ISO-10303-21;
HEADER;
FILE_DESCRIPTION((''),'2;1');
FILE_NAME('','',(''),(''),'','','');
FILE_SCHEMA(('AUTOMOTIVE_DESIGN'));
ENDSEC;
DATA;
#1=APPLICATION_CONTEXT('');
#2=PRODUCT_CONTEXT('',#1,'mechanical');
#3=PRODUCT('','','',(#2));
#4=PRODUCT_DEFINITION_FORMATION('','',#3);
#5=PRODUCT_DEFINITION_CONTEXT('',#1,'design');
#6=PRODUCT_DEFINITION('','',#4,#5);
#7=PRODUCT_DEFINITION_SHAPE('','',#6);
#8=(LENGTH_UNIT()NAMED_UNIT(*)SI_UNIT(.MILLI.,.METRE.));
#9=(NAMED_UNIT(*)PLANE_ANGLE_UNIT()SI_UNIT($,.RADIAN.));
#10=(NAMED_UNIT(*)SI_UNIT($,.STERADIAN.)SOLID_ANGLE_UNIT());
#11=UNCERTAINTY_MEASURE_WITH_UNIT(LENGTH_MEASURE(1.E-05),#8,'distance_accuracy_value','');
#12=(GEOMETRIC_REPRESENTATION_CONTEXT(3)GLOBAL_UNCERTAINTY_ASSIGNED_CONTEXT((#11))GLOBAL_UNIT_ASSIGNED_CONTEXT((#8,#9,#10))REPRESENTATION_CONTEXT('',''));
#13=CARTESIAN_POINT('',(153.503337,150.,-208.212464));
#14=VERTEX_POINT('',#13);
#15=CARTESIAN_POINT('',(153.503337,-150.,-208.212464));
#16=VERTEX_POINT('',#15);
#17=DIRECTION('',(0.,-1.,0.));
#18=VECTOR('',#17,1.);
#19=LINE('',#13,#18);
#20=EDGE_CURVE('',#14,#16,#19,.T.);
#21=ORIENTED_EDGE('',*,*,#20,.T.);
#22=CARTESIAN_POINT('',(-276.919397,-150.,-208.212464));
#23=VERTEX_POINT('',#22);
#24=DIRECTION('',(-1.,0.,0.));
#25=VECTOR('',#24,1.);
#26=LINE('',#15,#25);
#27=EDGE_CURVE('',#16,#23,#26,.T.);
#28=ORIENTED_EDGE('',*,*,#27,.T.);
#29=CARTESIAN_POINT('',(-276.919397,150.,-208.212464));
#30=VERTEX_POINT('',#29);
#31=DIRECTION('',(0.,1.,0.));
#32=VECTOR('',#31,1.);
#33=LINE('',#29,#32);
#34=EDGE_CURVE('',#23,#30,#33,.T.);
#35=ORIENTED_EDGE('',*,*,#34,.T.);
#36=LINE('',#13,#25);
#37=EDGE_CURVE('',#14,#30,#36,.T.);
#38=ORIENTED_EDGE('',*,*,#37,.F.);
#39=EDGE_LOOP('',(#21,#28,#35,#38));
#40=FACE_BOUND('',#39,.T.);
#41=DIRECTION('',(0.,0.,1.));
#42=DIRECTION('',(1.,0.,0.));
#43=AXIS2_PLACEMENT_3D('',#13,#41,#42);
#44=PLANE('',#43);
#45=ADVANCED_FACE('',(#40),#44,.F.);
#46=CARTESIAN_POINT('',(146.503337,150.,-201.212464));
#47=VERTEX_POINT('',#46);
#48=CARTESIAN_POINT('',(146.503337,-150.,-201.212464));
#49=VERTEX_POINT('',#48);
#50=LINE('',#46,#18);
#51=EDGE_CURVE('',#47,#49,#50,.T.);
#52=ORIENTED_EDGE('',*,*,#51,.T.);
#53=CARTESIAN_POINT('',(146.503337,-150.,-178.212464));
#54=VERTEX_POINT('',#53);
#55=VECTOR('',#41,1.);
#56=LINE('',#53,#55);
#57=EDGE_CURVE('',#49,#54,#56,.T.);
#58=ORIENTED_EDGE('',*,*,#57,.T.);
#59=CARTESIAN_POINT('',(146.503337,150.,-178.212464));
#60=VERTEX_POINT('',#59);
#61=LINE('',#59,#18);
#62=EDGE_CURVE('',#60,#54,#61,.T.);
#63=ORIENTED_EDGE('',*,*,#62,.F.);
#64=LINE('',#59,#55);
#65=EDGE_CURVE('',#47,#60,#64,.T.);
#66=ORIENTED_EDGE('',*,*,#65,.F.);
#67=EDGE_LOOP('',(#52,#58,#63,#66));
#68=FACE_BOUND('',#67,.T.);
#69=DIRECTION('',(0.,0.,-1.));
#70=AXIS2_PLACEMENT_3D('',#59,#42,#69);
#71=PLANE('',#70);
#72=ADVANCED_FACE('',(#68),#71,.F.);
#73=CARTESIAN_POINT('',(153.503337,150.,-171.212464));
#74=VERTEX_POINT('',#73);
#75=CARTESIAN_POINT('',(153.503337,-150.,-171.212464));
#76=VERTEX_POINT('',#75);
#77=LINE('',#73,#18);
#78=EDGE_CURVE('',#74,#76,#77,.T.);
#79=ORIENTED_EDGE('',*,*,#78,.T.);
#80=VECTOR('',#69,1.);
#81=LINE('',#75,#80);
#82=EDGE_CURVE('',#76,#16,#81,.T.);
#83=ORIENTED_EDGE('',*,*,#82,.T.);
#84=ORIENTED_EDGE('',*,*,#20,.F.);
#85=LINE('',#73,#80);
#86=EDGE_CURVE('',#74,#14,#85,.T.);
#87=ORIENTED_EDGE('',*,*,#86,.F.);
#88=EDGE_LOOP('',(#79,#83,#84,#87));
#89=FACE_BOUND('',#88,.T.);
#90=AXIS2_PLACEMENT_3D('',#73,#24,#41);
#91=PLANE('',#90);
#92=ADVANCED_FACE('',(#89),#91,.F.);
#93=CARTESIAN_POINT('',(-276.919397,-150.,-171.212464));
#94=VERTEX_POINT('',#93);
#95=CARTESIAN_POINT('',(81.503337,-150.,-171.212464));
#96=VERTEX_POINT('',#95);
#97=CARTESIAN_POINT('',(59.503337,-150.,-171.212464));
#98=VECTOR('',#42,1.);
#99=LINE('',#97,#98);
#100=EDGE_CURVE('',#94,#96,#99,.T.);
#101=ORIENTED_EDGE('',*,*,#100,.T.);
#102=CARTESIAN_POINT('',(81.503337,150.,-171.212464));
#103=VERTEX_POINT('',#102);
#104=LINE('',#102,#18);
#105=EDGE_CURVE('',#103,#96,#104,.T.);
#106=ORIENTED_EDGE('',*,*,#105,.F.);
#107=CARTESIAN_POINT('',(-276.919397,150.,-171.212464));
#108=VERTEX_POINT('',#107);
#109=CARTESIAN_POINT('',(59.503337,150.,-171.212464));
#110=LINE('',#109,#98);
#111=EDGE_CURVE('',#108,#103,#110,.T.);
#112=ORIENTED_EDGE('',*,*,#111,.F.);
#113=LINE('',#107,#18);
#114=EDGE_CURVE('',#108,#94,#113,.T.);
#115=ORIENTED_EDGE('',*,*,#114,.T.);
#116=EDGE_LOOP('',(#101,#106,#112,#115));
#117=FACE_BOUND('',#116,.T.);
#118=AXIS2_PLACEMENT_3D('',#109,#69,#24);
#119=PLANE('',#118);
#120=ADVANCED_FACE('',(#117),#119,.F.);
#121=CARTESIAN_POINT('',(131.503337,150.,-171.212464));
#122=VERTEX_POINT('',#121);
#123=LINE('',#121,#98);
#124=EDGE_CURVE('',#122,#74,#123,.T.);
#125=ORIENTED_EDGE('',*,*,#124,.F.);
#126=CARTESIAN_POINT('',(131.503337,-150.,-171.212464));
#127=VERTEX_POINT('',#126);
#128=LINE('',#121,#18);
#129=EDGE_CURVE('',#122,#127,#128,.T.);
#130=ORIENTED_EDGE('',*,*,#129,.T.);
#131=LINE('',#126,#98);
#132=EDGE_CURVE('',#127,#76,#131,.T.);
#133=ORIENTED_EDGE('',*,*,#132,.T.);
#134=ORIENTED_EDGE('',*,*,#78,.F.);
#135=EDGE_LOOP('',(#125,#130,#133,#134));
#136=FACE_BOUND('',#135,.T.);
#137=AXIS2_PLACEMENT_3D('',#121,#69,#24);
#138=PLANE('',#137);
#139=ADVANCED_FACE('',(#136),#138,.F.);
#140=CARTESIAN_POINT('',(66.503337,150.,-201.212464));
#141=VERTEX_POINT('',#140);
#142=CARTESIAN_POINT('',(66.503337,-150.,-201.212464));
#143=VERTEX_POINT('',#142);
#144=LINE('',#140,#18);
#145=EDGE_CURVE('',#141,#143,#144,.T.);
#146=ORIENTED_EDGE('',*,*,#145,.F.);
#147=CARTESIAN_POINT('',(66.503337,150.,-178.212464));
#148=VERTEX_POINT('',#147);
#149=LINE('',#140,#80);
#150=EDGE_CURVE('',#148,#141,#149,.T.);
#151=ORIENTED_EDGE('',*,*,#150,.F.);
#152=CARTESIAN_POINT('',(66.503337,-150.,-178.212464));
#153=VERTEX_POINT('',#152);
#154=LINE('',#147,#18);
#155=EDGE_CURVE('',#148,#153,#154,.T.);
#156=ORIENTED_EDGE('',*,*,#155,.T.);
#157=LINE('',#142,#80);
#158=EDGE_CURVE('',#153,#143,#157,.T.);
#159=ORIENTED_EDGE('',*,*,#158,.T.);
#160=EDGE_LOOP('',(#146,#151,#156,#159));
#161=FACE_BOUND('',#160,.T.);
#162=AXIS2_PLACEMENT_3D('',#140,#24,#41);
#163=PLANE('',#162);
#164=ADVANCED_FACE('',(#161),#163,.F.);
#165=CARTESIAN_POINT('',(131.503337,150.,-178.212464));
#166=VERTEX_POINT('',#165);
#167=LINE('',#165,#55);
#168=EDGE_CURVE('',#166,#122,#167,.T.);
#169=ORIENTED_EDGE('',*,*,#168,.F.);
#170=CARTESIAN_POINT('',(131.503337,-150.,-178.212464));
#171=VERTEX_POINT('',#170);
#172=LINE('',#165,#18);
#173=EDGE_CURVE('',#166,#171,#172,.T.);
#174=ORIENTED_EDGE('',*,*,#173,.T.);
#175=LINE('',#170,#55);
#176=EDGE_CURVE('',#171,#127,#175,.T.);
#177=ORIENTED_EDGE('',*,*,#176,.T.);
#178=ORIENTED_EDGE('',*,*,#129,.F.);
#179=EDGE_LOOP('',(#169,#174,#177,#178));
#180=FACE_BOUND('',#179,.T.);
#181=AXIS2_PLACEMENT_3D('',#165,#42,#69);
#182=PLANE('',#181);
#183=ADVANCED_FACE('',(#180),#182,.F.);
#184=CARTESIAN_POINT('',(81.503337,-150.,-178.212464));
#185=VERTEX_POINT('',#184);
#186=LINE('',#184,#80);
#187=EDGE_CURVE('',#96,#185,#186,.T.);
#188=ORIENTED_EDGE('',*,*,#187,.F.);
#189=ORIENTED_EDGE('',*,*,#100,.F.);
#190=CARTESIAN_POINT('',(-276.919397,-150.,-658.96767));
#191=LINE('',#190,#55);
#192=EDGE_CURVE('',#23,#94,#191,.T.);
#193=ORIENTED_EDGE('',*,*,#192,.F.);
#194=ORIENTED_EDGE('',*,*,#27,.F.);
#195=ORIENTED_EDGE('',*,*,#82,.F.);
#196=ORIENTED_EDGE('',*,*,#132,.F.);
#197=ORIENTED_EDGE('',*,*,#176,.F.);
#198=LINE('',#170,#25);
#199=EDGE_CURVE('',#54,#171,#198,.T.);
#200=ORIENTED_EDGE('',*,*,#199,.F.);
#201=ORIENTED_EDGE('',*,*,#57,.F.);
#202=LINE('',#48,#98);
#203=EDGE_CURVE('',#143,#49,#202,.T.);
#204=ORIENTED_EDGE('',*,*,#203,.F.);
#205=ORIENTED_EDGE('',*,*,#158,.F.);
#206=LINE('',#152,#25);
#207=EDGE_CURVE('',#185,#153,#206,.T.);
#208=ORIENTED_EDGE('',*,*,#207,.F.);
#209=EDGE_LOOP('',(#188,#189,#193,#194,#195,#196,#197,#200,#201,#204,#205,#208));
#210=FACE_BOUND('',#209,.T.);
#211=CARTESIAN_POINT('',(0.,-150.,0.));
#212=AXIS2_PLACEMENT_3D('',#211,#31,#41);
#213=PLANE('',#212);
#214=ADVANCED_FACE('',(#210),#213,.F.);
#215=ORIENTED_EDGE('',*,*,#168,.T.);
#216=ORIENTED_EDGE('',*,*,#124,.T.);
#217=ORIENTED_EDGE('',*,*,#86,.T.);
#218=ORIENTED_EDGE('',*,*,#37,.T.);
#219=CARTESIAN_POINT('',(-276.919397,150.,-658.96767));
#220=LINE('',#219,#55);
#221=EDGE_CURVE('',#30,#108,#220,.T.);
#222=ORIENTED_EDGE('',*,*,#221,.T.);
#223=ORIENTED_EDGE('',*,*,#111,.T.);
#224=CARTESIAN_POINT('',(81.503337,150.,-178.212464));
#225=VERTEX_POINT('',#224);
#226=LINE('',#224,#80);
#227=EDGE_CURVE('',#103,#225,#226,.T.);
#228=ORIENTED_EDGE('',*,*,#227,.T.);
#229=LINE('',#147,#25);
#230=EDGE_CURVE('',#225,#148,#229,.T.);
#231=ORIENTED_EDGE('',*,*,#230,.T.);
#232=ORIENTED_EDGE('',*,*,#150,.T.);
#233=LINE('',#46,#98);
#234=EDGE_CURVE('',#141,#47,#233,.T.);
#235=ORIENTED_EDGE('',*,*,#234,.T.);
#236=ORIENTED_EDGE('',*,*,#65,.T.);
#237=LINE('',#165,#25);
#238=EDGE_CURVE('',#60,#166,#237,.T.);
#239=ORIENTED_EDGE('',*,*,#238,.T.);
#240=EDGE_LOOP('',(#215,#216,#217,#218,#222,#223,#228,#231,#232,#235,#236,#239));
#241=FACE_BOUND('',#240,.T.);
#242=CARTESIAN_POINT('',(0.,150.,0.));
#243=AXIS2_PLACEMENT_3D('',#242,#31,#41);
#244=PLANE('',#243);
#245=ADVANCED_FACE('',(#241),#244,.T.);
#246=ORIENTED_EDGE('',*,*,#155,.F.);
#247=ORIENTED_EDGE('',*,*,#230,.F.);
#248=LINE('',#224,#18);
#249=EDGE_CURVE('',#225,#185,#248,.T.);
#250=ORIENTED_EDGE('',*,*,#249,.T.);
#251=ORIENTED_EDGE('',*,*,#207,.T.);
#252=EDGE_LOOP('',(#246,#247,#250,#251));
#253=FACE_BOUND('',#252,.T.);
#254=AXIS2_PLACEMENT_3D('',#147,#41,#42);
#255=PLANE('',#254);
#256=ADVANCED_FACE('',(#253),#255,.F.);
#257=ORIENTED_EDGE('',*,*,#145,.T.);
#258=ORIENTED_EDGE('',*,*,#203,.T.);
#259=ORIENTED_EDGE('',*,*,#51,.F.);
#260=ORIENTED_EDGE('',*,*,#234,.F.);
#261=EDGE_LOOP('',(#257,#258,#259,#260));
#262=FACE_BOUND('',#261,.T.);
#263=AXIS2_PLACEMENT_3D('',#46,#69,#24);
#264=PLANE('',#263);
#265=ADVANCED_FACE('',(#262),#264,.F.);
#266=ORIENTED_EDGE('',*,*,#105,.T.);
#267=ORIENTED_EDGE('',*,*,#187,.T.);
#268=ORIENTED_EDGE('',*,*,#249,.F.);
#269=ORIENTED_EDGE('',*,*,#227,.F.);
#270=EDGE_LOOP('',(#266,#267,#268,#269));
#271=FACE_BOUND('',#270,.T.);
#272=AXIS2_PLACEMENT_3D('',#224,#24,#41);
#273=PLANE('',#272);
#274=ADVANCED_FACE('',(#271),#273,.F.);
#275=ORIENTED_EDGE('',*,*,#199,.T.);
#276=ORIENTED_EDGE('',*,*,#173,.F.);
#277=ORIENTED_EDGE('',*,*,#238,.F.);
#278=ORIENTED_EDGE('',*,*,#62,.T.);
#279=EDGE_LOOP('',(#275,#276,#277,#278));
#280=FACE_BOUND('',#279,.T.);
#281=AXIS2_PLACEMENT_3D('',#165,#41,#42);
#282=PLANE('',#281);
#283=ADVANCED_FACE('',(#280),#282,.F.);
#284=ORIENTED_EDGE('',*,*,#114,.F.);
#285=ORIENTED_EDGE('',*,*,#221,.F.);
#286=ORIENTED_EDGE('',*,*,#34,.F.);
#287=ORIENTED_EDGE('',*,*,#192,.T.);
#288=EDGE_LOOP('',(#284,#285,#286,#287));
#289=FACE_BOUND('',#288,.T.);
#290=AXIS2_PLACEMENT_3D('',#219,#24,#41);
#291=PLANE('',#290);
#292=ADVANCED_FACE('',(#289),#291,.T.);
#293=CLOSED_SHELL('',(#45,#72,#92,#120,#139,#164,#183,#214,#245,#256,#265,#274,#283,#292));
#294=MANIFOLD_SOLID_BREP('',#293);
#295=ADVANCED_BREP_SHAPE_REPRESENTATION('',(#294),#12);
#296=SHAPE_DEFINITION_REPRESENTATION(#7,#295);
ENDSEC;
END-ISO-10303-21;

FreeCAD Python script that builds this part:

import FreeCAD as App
import Part
import Sketcher
from FreeCAD import Vector


def add_polygon(sketch, points):
    """Adds a closed chain of lines whose ends are joined by coincident constraints."""
    first, n = sketch.GeometryCount, len(points)
    for a, b in zip(points, points[1:] + points[:1]):
        sketch.addGeometry(Part.LineSegment(App.Vector(*a, 0), App.Vector(*b, 0)), False)
    for i in range(n):
        sketch.addConstraint(Sketcher.Constraint("Coincident", first + i, 2, first + (i + 1) % n, 1))

doc = App.newDocument("Part")
body = doc.addObject("PartDesign::Body", "Body")

sketch1 = body.newObject("Sketcher::SketchObject", "Sketch")
sketch1.AttachmentSupport = (doc.getObject("XZ_Plane"), [""])
sketch1.MapMode = "FlatFace"
add_polygon(sketch1, [(146.503337, -178.212464), (131.503337, -178.212464), (131.503337, -171.212464), (153.503337, -171.212464), (153.503337, -208.212464), (59.503337, -208.212464), (59.503337, -171.212464), (81.503337, -171.212464), (81.503337, -178.212464), (66.503337, -178.212464), (66.503337, -201.212464), (146.503337, -201.212464)])
sketch1.addConstraint([
    Sketcher.Constraint("Horizontal", 0),
    Sketcher.Constraint("Vertical", 1),
    Sketcher.Constraint("Horizontal", 2),
    Sketcher.Constraint("Vertical", 3),
    Sketcher.Constraint("Horizontal", 4),
    Sketcher.Constraint("Vertical", 5),
    Sketcher.Constraint("Horizontal", 6),
    Sketcher.Constraint("Vertical", 7),
    Sketcher.Constraint("Horizontal", 8),
    Sketcher.Constraint("Vertical", 9),
    Sketcher.Constraint("Horizontal", 10),
    Sketcher.Constraint("Vertical", 11),
    Sketcher.Constraint("Horizontal", 2, 2, 5, 2),
    Sketcher.Constraint("Horizontal", 0, 2, 7, 2),
    Sketcher.Constraint("Equal", 2, 6),
    Sketcher.Constraint("Equal", 0, 8),
    Sketcher.Constraint("DistanceX", 0, 2, 0, 1, 15.0),
    Sketcher.Constraint("DistanceX", 2, 1, 2, 2, 22.0),
    Sketcher.Constraint("DistanceX", 4, 2, 4, 1, 94.0),
    Sketcher.Constraint("DistanceY", 1, 1, 1, 2, 7.0),
    Sketcher.Constraint("DistanceY", 3, 2, 3, 1, 37.0),
    Sketcher.Constraint("DistanceY", 9, 2, 9, 1, 23.0),
    Sketcher.Constraint("DistanceX", -1, 1, 0, 2, 131.503337),
    Sketcher.Constraint("DistanceY", 0, 2, -1, 1, 178.212464),
])
pad1 = body.newObject("PartDesign::Pad", "Pad")
pad1.Profile = sketch1
pad1.Length = 300
pad1.Midplane = True

sketch2 = body.newObject("Sketcher::SketchObject", "Sketch001")
sketch2.AttachmentSupport = (doc.getObject("XY_Plane"), [""])
sketch2.MapMode = "FlatFace"
sketch2.AttachmentOffset = App.Placement(Vector(0, 0, -171.212464), App.Rotation())
add_polygon(sketch2, [(-276.919397, 150), (-276.919397, -150), (59.503337, -150), (59.503337, 150)])
sketch2.addConstraint([
    Sketcher.Constraint("Vertical", 0),
    Sketcher.Constraint("Horizontal", 1),
    Sketcher.Constraint("Vertical", 2),
    Sketcher.Constraint("Horizontal", 3),
    Sketcher.Constraint("DistanceY", 0, 2, 0, 1, 300.0),
    Sketcher.Constraint("DistanceY", 0, 2, -1, 1, 150.0),
    Sketcher.Constraint("DistanceX", 1, 1, 1, 2, 336.422734),
    Sketcher.Constraint("DistanceX", 0, 2, -1, 1, 276.919397),
])
pad2 = body.newObject("PartDesign::Pad", "Pad001")
pad2.Profile = sketch2
pad2.Length = 37
pad2.Reversed = True

doc.recompute()
